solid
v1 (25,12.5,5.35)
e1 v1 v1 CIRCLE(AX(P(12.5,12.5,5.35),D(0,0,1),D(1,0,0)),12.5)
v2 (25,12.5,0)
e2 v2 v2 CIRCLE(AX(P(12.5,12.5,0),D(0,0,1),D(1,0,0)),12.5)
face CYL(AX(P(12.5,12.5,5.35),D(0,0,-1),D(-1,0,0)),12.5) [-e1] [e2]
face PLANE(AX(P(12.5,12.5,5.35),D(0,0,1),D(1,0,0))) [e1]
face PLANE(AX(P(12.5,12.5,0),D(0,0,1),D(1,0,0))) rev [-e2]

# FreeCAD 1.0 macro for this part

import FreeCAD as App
import Part
import Sketcher
Q = App.Units.Quantity

doc = App.newDocument("Part")
body = doc.addObject("PartDesign::Body", "Body")

# Sketch on XY plane
sketch1 = doc.addObject("Sketcher::SketchObject", "Sketch")
body.addObject(sketch1)
sketch1.AttachmentSupport = (doc.XY_Plane, [""])
sketch1.MapMode = "FlatFace"
sketch1.addGeometry(Part.Circle(App.Vector(12, 12, 0), App.Vector(0, 0, 1), 12), False)
sketch1.addConstraint(Sketcher.Constraint("Diameter", 0, Q("25 mm")))
sketch1.addConstraint(Sketcher.Constraint("DistanceX", -1, 1, 0, 3, Q("12.5 mm")))
sketch1.addConstraint(Sketcher.Constraint("DistanceY", -1, 1, 0, 3, Q("12.5 mm")))
pad1 = doc.addObject("PartDesign::Pad", "Pad")
body.addObject(pad1)
pad1.Profile = sketch1
pad1.Length = 5.35

doc.recompute()
